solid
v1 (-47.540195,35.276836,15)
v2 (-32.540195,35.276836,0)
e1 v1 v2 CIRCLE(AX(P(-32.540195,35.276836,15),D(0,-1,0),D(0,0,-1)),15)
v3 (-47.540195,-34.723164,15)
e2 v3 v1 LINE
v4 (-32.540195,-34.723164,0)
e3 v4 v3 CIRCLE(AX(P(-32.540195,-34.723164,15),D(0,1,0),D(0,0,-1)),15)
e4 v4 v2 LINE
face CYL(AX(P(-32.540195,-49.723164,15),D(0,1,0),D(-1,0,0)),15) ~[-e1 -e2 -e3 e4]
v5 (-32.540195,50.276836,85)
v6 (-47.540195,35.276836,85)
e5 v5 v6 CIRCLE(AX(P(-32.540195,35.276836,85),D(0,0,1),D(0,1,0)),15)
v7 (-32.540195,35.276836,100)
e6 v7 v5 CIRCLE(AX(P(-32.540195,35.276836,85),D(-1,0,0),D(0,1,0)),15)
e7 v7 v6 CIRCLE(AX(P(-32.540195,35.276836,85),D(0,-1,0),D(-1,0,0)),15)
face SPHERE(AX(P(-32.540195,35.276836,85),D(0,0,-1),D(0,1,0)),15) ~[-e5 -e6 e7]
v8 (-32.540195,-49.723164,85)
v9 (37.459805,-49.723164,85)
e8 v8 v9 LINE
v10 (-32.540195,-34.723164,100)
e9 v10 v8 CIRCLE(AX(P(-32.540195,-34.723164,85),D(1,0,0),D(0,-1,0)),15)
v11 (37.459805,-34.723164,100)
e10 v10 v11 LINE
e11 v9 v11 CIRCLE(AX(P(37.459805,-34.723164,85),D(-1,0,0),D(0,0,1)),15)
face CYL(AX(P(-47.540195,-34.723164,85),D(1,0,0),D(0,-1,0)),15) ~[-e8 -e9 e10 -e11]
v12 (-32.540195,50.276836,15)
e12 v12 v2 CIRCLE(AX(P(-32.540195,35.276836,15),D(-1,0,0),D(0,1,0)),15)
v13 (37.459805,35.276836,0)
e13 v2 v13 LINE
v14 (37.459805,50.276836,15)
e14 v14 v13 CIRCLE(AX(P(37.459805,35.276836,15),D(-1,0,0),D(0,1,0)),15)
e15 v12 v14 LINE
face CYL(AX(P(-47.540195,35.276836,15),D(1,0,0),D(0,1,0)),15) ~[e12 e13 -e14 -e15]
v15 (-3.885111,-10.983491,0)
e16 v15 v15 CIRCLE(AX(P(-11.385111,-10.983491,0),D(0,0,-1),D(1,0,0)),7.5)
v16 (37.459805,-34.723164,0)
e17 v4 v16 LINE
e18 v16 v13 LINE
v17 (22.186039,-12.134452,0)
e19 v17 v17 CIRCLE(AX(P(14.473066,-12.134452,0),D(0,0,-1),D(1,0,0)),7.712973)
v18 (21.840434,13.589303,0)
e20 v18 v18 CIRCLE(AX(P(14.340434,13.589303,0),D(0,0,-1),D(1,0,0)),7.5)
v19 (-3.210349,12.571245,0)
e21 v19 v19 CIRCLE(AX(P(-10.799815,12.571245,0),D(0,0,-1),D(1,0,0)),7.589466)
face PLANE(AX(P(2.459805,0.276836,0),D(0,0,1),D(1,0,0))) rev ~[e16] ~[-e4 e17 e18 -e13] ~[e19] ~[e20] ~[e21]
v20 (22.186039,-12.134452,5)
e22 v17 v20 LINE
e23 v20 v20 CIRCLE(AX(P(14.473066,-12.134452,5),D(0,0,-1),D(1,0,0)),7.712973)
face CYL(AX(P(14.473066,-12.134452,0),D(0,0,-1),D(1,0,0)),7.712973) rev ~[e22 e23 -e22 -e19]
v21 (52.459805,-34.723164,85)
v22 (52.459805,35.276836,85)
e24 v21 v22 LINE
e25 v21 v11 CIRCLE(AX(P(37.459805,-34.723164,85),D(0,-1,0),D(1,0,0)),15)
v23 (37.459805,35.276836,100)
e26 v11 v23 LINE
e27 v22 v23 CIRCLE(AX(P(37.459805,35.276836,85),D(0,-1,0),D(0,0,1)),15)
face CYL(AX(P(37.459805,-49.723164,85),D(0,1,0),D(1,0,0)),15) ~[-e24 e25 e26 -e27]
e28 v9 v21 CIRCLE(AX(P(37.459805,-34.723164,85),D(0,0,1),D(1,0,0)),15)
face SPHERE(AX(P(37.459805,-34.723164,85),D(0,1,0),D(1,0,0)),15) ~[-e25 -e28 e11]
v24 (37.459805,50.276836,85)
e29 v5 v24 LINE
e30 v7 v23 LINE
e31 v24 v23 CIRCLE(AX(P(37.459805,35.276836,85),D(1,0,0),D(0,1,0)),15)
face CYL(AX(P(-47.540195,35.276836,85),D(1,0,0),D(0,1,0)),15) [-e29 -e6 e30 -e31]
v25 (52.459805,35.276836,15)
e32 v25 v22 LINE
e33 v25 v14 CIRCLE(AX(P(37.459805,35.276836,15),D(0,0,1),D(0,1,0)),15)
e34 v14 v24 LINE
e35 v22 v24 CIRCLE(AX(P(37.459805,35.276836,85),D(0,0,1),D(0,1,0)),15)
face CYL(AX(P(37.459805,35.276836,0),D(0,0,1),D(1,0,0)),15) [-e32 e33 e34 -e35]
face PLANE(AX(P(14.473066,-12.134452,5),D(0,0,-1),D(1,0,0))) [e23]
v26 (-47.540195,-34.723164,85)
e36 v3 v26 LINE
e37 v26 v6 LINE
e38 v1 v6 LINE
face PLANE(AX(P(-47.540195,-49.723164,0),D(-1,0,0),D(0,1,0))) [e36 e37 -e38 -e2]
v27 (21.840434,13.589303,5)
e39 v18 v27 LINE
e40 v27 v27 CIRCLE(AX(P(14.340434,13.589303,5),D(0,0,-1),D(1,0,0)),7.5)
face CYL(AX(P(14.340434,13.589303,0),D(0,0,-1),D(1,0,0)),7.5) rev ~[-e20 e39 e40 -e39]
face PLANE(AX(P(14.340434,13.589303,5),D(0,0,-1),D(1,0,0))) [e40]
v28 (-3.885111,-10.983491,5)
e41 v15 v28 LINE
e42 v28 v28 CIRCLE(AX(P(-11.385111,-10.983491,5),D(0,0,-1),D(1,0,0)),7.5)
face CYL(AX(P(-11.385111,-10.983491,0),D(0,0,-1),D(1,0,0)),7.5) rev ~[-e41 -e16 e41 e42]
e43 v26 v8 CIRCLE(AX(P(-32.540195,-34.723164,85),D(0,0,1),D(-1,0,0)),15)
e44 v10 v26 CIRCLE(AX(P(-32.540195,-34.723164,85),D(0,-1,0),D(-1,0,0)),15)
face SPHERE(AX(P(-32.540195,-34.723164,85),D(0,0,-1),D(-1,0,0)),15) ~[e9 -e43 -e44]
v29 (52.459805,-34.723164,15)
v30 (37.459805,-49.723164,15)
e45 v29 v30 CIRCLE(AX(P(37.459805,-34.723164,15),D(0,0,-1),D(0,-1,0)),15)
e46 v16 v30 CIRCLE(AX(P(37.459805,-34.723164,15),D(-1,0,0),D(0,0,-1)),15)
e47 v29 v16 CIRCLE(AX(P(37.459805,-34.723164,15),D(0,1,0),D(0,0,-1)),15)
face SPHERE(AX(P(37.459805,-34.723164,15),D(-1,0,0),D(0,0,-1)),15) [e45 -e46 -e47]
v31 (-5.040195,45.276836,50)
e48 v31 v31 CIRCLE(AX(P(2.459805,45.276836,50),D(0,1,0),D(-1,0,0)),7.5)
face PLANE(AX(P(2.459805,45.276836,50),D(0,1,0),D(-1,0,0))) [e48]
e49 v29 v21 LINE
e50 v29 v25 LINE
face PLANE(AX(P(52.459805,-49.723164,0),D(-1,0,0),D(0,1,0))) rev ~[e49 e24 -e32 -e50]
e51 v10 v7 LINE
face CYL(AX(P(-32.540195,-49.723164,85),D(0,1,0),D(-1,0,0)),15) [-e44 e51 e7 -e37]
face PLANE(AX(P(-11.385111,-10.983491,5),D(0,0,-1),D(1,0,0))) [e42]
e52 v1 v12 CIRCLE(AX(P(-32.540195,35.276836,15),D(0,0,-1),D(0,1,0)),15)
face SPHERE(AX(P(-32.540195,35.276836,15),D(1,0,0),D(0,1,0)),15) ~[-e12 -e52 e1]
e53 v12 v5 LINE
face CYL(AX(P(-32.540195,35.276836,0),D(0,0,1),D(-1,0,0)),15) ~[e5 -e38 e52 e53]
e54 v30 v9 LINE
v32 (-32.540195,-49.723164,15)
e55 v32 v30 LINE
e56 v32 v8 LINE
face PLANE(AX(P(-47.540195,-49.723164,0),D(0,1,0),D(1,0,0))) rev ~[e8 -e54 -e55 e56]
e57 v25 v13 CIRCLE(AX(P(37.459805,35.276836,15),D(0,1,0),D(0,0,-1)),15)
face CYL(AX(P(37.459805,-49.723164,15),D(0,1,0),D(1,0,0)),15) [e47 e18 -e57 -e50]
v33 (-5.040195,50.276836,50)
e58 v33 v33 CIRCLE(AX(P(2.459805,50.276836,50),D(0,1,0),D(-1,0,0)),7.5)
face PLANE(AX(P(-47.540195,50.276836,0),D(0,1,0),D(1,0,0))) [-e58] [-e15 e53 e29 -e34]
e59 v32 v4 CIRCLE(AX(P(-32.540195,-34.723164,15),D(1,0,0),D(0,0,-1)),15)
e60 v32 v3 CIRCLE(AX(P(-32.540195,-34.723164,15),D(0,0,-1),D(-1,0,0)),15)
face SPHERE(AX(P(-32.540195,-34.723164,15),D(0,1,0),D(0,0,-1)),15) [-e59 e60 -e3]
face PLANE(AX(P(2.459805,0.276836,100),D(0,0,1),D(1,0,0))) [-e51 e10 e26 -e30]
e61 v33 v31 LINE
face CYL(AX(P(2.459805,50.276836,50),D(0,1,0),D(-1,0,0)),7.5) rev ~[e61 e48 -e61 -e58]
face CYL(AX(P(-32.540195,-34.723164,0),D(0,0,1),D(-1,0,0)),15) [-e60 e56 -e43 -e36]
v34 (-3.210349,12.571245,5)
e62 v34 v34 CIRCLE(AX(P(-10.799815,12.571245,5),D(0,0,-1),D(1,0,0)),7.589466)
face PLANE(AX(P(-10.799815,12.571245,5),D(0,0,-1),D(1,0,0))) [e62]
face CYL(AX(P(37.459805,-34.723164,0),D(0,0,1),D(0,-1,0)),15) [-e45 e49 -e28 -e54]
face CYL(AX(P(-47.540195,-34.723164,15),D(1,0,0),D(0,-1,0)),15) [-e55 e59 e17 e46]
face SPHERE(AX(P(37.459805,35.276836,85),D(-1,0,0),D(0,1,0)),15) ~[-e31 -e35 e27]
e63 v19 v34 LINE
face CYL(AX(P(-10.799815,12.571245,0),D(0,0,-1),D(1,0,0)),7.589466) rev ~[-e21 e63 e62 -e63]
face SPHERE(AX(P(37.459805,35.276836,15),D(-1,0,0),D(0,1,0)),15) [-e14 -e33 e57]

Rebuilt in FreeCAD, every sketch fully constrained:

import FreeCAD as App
import Part
import Sketcher
from FreeCAD import Vector
Q = App.Units.Quantity


def add_polygon(sketch, points):
    """Adds a closed chain of lines whose ends are joined by coincident constraints."""
    first, n = sketch.GeometryCount, len(points)
    for a, b in zip(points, points[1:] + points[:1]):
        sketch.addGeometry(Part.LineSegment(App.Vector(*a, 0), App.Vector(*b, 0)), False)
    for i in range(n):
        sketch.addConstraint(Sketcher.Constraint("Coincident", first + i, 2, first + (i + 1) % n, 1))

doc = App.newDocument("Part")
body = doc.addObject("PartDesign::Body", "Body")

# Sketch on XY plane
sketch1 = body.newObject("Sketcher::SketchObject", "Sketch")
sketch1.AttachmentSupport = (doc.getObject("XY_Plane"), [""])
sketch1.MapMode = "FlatFace"
add_polygon(sketch1, [(-48, 50), (-48, -50), (52, -50), (52, 50)])  # lines 0-3
sketch1.addConstraint(Sketcher.Constraint("Vertical", 0))
sketch1.addConstraint(Sketcher.Constraint("Horizontal", 1))
sketch1.addConstraint(Sketcher.Constraint("Vertical", 2))
sketch1.addConstraint(Sketcher.Constraint("Horizontal", 3))
sketch1.addConstraint(Sketcher.Constraint("Equal", 3, 0))
sketch1.addConstraint(Sketcher.Constraint("DistanceX", 1, 1, 1, 2, Q("100 mm")))
sketch1.addConstraint(Sketcher.Constraint("DistanceX", 0, 2, -1, 1, Q("47.540195 mm")))
sketch1.addConstraint(Sketcher.Constraint("DistanceY", 0, 2, -1, 1, Q("49.723164 mm")))
pad1 = body.newObject("PartDesign::Pad", "Pad")
pad1.Profile = sketch1
pad1.Length = 100
doc.recompute()

fillet = body.newObject("PartDesign::Fillet", "Fillet")
fillet.Base = (pad1, ["Edge1"])
fillet.UseAllEdges = True
fillet.Radius = 15

# Sketch on XZ plane
sketch2 = body.newObject("Sketcher::SketchObject", "Sketch001")
sketch2.AttachmentSupport = (doc.getObject("XZ_Plane"), [""])
sketch2.MapMode = "FlatFace"
sketch2.AttachmentOffset = App.Placement(Vector(0, 0, -50.276836), App.Rotation())
sketch2.addGeometry(Part.Circle(Vector(2, 50, 0), Vector(0, 0, 1), 8), False)
sketch2.addConstraint(Sketcher.Constraint("Diameter", 0, Q("15 mm")))
sketch2.addConstraint(Sketcher.Constraint("DistanceY", -1, 1, 0, 3, Q("50 mm")))
sketch2.addConstraint(Sketcher.Constraint("DistanceX", -1, 1, 0, 3, Q("2.459805 mm")))
pocket1 = body.newObject("PartDesign::Pocket", "Pocket")
pocket1.Profile = sketch2
pocket1.Length = 5
pocket1.Reversed = True

# Sketch on XY plane
sketch3 = body.newObject("Sketcher::SketchObject", "Sketch002")
sketch3.AttachmentSupport = (doc.getObject("XY_Plane"), [""])
sketch3.MapMode = "FlatFace"
sketch3.addGeometry(Part.Circle(Vector(14, 14, 0), Vector(0, 0, 1), 8), False)
sketch3.addGeometry(Part.Circle(Vector(-11, 13, 0), Vector(0, 0, 1), 8), False)
sketch3.addGeometry(Part.Circle(Vector(14, -12, 0), Vector(0, 0, 1), 8), False)
sketch3.addGeometry(Part.Circle(Vector(-11, -11, 0), Vector(0, 0, 1), 8), False)
sketch3.addConstraint(Sketcher.Constraint("Equal", 0, 3))
sketch3.addConstraint(Sketcher.Constraint("Diameter", 0, Q("15 mm")))
sketch3.addConstraint(Sketcher.Constraint("Diameter", 1, Q("15.178932 mm")))
sketch3.addConstraint(Sketcher.Constraint("Diameter", 2, Q("15.425946 mm")))
sketch3.addConstraint(Sketcher.Constraint("DistanceX", 3, 3, -1, 1, Q("11.385111 mm")))
sketch3.addConstraint(Sketcher.Constraint("DistanceY", 3, 3, -1, 1, Q("10.983491 mm")))
sketch3.addConstraint(Sketcher.Constraint("DistanceX", 1, 3, 0, 3, Q("25.140249 mm")))
sketch3.addConstraint(Sketcher.Constraint("DistanceX", 0, 3, 2, 3, Q("0.132632 mm")))
sketch3.addConstraint(Sketcher.Constraint("DistanceY", 2, 3, 3, 3, Q("1.150961 mm")))
sketch3.addConstraint(Sketcher.Constraint("DistanceX", -1, 1, 0, 3, Q("14.340434 mm")))
sketch3.addConstraint(Sketcher.Constraint("DistanceY", -1, 1, 0, 3, Q("13.589303 mm")))
sketch3.addConstraint(Sketcher.Constraint("DistanceY", -1, 1, 1, 3, Q("12.571245 mm")))
pocket2 = body.newObject("PartDesign::Pocket", "Pocket001")
pocket2.Profile = sketch3
pocket2.Length = 5
pocket2.Reversed = True

doc.recompute()
